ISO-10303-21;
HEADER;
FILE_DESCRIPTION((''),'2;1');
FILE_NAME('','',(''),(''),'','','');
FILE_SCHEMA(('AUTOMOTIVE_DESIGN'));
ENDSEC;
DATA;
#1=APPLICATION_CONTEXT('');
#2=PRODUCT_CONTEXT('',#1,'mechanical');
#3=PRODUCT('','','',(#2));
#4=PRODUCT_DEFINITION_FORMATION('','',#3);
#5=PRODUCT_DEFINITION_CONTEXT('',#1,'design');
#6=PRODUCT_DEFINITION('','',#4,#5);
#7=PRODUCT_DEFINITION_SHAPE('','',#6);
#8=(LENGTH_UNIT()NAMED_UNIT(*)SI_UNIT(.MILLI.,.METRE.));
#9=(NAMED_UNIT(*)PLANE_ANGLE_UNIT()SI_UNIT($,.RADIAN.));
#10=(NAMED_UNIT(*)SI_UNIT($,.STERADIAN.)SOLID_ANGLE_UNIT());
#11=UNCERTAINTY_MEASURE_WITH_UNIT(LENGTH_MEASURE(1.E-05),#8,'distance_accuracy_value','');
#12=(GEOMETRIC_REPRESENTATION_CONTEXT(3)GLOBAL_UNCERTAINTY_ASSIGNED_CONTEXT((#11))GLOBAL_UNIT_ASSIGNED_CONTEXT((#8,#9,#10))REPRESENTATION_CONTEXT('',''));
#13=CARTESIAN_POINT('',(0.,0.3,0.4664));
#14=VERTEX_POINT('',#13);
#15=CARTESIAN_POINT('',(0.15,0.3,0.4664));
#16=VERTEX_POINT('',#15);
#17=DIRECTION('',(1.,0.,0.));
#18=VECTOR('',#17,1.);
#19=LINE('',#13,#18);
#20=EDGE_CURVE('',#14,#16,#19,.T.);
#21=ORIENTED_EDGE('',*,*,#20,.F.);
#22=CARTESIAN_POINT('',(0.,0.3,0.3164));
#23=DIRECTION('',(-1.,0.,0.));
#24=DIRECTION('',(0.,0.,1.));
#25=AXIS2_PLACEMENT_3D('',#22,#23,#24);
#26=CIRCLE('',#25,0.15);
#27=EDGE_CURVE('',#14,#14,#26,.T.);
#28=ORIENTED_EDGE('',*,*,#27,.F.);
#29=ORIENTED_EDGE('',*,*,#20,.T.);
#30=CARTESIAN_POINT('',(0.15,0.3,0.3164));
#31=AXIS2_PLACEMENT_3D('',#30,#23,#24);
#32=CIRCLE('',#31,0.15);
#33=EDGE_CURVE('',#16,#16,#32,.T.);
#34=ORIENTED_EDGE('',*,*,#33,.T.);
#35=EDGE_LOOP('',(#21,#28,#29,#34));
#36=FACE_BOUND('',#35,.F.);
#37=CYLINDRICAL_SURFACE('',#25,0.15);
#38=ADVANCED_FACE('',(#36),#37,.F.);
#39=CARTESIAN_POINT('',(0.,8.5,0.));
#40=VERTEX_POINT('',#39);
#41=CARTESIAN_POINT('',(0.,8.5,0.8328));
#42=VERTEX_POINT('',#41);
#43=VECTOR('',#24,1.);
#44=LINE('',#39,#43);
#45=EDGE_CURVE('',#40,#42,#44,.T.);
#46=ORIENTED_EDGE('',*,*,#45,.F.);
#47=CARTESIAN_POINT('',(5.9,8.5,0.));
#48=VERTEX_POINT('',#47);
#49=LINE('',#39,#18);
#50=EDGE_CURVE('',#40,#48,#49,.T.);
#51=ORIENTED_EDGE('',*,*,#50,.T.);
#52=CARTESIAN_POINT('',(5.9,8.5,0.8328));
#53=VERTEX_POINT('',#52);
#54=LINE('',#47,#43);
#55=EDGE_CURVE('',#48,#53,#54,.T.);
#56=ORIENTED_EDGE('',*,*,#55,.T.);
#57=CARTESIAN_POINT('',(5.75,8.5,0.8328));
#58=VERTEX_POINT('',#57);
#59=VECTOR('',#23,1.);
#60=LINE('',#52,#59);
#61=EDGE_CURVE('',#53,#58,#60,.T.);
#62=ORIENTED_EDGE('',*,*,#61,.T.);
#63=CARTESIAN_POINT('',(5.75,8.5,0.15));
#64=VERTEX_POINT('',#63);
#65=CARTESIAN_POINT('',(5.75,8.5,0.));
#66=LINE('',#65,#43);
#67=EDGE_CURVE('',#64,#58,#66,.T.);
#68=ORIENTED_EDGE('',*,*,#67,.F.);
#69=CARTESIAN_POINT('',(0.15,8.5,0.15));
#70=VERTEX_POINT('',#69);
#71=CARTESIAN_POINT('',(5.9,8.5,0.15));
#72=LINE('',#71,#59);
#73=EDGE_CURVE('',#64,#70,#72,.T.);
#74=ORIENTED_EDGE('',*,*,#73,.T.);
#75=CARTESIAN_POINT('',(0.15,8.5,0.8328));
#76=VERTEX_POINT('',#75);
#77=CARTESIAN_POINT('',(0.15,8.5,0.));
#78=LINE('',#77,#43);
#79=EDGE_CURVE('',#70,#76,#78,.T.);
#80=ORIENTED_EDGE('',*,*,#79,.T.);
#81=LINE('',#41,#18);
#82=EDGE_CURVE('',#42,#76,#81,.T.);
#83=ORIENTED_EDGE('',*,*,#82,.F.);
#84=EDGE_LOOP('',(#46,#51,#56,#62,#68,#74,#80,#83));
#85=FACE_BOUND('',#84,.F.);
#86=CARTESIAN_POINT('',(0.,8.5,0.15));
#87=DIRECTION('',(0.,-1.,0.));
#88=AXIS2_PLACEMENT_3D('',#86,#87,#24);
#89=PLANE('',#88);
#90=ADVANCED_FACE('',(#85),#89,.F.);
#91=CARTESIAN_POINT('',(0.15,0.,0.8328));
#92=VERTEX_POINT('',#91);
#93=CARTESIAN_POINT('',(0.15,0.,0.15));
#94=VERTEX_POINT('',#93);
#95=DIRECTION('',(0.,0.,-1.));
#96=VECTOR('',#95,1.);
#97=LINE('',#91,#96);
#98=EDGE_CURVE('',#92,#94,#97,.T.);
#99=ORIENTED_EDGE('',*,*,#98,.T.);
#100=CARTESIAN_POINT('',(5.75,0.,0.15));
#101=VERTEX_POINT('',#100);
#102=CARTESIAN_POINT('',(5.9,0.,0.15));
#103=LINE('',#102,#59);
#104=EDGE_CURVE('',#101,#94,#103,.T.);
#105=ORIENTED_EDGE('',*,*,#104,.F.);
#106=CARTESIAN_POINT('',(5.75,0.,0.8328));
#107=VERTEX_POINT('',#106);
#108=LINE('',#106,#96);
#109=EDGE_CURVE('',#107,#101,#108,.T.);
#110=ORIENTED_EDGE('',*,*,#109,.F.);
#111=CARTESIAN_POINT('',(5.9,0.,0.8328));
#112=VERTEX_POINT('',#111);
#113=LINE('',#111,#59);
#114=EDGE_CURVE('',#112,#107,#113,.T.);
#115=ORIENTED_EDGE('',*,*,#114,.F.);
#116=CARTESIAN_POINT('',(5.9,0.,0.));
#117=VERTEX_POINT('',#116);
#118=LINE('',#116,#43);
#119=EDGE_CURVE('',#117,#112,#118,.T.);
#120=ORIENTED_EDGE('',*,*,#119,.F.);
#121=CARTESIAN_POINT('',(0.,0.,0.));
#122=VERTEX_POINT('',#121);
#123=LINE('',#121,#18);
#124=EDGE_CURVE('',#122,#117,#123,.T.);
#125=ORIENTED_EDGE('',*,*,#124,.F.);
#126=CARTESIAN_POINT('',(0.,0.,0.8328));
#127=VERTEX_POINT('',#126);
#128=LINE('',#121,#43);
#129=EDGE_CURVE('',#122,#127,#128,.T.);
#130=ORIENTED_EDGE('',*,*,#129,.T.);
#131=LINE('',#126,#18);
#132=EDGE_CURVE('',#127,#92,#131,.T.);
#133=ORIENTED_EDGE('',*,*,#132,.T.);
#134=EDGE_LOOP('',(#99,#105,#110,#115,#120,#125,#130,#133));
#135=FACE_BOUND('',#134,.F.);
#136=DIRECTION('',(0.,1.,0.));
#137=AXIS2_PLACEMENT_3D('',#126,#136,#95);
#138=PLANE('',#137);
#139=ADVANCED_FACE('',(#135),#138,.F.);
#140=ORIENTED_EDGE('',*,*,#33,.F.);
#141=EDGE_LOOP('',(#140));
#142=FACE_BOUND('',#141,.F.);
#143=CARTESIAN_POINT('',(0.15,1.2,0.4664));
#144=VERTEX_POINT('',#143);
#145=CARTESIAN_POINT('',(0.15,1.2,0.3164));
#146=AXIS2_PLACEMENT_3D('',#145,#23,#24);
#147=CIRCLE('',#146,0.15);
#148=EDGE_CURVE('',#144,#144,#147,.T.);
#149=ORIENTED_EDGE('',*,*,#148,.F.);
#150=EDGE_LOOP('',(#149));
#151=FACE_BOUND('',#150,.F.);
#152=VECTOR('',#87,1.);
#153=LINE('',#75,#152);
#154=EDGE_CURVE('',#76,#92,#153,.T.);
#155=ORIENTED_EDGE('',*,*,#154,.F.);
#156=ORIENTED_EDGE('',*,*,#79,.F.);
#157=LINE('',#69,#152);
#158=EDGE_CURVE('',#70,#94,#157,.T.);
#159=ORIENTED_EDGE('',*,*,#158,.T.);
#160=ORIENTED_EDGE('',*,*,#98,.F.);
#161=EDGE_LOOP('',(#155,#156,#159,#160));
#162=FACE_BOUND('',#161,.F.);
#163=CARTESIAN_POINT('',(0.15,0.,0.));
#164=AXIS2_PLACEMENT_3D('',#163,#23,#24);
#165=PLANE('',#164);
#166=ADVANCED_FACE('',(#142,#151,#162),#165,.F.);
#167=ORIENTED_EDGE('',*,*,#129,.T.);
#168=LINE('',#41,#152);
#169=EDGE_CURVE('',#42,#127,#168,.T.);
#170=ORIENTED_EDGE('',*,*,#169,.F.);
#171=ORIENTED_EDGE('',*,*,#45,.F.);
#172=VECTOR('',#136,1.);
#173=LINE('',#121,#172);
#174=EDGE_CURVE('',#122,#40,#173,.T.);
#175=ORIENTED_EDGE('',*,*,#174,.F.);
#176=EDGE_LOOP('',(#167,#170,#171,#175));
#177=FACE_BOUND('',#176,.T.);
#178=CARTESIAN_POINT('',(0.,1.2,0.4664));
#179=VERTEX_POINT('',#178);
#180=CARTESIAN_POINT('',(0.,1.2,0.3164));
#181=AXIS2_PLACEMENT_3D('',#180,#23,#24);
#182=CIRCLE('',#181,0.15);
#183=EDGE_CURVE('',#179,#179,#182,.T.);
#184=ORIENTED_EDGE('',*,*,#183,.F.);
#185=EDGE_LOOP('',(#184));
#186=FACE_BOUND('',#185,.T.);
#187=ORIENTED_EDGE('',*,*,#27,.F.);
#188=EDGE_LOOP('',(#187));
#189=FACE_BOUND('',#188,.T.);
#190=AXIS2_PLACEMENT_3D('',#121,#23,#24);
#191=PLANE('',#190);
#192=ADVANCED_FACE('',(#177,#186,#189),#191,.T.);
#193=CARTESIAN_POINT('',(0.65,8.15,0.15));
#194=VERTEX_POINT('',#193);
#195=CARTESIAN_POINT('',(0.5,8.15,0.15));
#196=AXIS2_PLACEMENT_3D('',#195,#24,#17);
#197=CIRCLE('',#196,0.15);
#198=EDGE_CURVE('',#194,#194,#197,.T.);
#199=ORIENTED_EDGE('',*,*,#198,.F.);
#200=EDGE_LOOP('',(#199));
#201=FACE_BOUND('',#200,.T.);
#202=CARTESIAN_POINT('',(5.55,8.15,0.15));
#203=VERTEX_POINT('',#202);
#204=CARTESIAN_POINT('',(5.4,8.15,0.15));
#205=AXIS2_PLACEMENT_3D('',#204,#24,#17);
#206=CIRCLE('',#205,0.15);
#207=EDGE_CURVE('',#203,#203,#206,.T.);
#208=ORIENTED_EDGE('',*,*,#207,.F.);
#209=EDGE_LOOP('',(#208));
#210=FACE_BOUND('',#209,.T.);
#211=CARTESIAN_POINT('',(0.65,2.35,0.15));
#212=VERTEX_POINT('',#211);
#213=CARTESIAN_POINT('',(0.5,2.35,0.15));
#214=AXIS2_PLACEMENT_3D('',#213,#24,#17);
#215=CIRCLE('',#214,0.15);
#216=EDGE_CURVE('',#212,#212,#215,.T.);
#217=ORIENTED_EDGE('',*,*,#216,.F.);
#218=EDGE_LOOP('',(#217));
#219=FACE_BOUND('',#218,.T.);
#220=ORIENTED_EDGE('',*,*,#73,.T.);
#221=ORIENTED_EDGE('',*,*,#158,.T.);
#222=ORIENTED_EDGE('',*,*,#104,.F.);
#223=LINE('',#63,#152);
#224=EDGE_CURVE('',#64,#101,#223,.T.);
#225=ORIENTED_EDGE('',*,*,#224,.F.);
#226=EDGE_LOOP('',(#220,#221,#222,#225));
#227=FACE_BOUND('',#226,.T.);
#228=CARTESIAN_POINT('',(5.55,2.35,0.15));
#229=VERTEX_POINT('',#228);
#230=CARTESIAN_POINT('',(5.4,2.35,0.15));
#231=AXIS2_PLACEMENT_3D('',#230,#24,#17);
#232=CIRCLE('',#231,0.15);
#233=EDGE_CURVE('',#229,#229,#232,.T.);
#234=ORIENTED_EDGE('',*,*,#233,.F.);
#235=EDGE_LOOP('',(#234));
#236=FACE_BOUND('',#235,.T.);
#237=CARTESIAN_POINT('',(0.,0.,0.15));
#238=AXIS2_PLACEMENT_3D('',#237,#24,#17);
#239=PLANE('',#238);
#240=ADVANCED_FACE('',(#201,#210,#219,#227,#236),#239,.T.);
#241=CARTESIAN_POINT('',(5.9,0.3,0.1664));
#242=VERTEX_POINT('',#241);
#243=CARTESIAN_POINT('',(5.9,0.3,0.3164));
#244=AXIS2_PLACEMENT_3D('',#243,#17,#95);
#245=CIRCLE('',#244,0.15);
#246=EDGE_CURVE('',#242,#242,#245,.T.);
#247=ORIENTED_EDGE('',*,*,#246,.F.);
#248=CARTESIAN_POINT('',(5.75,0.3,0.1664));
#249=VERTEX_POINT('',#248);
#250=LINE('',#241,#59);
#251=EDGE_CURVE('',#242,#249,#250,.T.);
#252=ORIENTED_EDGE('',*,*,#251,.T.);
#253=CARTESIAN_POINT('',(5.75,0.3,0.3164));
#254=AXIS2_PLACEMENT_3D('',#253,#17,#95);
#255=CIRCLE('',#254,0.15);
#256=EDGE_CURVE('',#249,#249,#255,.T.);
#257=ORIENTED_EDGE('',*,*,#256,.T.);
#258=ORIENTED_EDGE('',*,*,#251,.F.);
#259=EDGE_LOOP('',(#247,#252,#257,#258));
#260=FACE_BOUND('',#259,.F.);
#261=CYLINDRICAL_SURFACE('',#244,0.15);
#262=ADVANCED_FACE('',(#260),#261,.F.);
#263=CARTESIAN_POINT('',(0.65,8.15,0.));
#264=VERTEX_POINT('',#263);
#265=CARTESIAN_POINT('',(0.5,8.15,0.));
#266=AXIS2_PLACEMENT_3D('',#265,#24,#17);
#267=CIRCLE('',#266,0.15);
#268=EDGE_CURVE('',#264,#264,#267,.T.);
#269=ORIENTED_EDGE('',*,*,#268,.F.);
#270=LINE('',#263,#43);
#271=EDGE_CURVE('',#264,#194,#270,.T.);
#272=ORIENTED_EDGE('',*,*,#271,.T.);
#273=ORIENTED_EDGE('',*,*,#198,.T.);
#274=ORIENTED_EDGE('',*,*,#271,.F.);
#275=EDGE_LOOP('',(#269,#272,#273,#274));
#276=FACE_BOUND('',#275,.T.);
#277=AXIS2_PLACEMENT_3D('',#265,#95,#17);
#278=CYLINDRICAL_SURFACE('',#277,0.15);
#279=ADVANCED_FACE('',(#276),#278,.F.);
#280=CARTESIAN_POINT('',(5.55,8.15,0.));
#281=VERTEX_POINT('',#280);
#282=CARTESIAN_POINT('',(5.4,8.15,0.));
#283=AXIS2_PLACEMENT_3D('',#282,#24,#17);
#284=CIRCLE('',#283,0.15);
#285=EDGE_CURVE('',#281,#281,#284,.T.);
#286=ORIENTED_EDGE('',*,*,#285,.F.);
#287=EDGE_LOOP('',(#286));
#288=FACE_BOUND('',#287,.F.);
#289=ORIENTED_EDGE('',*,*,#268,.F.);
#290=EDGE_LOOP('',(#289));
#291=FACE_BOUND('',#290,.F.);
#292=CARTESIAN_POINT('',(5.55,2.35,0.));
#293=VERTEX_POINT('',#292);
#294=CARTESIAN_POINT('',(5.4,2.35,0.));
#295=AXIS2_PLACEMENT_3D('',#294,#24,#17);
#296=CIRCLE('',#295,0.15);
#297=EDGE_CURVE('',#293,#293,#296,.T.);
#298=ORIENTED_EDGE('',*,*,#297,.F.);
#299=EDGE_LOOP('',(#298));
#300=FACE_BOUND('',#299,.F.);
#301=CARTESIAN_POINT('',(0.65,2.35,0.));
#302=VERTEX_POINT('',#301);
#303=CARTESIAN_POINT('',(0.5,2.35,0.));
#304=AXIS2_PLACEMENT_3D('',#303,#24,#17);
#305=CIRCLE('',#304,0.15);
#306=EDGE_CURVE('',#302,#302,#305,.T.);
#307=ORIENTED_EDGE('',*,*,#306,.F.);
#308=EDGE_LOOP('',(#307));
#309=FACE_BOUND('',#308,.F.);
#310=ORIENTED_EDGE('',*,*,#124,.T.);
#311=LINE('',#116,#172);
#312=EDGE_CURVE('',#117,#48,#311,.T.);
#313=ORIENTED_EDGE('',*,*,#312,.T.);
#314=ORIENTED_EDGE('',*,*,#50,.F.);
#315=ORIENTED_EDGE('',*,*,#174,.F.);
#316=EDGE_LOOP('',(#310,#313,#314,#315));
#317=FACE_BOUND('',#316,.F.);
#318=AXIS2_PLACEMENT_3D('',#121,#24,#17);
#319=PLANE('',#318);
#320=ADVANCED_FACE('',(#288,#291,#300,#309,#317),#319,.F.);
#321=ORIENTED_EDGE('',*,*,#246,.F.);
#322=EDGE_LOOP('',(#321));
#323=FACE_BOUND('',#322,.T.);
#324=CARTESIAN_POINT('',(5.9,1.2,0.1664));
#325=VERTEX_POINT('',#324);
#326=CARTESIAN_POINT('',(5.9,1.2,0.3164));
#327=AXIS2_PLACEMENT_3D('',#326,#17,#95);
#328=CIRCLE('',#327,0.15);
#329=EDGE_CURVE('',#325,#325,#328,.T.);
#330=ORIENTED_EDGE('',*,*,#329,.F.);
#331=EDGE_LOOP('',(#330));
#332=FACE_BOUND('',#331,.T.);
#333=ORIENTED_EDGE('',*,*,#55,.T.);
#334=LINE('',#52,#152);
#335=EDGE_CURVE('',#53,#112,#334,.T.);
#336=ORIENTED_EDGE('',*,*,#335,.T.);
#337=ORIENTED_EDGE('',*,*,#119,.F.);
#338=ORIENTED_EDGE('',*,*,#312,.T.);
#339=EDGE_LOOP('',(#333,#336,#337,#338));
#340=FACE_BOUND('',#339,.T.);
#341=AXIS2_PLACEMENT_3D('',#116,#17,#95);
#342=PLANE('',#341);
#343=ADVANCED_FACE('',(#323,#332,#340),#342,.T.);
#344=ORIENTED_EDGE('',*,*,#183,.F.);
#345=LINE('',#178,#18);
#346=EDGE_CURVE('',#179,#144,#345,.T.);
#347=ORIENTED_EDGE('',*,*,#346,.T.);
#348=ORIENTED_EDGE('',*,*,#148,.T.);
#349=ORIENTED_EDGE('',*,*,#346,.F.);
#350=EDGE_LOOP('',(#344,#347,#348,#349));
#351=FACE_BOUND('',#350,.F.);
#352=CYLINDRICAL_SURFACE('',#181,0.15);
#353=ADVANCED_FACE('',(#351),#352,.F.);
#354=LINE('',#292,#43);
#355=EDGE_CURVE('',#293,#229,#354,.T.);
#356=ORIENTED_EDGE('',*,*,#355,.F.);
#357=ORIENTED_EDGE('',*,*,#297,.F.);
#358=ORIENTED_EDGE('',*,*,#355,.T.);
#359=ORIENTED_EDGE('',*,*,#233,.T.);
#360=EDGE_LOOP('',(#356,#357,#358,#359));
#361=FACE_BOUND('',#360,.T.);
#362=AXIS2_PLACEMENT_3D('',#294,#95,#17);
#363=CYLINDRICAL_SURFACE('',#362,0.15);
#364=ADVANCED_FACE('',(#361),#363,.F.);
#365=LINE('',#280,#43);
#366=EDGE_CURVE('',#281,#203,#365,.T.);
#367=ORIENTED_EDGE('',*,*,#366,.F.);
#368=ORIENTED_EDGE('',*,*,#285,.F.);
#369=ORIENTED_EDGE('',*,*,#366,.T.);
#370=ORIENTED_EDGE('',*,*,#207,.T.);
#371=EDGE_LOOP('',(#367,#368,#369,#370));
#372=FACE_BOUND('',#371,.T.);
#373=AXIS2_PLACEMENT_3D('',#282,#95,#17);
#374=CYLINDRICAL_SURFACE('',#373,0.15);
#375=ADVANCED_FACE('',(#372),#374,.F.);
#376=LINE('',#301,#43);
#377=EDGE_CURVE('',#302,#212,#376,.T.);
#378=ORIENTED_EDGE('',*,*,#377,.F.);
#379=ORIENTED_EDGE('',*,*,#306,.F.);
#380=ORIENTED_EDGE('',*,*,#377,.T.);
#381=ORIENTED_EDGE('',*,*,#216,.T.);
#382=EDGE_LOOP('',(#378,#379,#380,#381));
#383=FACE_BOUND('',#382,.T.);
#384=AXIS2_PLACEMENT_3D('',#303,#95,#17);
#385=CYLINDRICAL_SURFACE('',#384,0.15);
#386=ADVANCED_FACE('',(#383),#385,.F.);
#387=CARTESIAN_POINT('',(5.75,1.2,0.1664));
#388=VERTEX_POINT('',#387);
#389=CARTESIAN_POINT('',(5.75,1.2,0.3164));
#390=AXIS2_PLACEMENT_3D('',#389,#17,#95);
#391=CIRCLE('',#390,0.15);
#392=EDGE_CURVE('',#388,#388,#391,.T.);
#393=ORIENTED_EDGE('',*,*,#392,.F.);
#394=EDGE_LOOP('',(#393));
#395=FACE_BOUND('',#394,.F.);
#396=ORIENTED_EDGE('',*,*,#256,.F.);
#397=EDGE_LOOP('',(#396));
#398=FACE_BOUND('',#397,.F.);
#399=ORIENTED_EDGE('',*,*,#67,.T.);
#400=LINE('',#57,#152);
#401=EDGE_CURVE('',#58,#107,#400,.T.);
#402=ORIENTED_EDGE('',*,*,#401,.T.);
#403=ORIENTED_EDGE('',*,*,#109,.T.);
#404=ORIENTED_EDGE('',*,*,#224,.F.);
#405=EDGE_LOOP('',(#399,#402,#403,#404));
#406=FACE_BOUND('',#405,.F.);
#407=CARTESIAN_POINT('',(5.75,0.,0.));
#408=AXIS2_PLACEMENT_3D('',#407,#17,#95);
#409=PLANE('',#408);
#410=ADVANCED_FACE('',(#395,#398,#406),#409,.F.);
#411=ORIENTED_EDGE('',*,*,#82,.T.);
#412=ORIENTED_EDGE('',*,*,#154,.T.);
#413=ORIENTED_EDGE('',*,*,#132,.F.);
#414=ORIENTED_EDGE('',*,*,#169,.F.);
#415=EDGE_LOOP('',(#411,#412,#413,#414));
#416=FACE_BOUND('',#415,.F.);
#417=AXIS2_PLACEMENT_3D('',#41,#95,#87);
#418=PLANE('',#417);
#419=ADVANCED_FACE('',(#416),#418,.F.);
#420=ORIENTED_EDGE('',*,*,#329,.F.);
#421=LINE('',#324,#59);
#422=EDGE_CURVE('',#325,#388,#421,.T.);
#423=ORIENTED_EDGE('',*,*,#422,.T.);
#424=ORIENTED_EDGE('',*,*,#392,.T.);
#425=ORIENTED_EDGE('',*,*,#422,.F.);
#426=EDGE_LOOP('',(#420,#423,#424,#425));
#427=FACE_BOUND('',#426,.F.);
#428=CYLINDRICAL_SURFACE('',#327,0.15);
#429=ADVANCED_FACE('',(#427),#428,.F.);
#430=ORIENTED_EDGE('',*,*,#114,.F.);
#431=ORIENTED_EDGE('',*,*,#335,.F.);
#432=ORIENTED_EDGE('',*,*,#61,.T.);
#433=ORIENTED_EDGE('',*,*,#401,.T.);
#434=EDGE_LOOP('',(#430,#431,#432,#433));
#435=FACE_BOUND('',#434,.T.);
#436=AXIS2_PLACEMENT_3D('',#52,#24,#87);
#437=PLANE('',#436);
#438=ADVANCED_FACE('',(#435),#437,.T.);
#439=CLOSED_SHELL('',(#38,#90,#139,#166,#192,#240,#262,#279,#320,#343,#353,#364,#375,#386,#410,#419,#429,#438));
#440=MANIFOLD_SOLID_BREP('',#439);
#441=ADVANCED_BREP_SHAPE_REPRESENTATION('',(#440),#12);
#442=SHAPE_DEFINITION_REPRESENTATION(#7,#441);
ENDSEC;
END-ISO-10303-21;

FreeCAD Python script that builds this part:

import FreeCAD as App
import Part
import Sketcher

V = App.Vector
Q = App.Units.Quantity

doc = App.newDocument("Part")
body = doc.addObject("PartDesign::Body", "Body")

# Sketch on XY plane
sketch1 = doc.addObject("Sketcher::SketchObject", "Sketch")
body.addObject(sketch1)
sketch1.AttachmentSupport = (doc.XY_Plane, [""])
sketch1.MapMode = "FlatFace"
sketch1.addGeometry([
    Part.LineSegment(V(0, 0, 0), V(5.9, 0, 0)),  # 0
    Part.LineSegment(V(5.9, 0, 0), V(5.9, 8.5, 0)),  # 1
    Part.LineSegment(V(5.9, 8.5, 0), V(0, 8.5, 0)),  # 2
    Part.LineSegment(V(0, 8.5, 0), V(0, 0, 0)),  # 3
    Part.Circle(V(5.4, 8.15, 0), V(0, 0, 1), 0.15),  # 4
    Part.Circle(V(0.5, 2.35, 0), V(0, 0, 1), 0.15),  # 5
    Part.Circle(V(5.4, 2.35, 0), V(0, 0, 1), 0.15),  # 6
    Part.Circle(V(0.5, 8.15, 0), V(0, 0, 1), 0.15),  # 7
], False)
sketch1.addConstraint([
    Sketcher.Constraint("Coincident", 0, 2, 1, 1),
    Sketcher.Constraint("Coincident", 1, 2, 2, 1),
    Sketcher.Constraint("Coincident", 2, 2, 3, 1),
    Sketcher.Constraint("Coincident", 3, 2, 0, 1),
    Sketcher.Constraint("Horizontal", 0),
    Sketcher.Constraint("Vertical", 1),
    Sketcher.Constraint("Horizontal", 2),
    Sketcher.Constraint("Vertical", 3),
    Sketcher.Constraint("Coincident", 3, 2, -1, 1),
    Sketcher.Constraint("Equal", 4, 5),
    Sketcher.Constraint("Equal", 5, 6),
    Sketcher.Constraint("Equal", 6, 7),
    Sketcher.Constraint("Horizontal", 5, 3, 6, 3),
    Sketcher.Constraint("Horizontal", 4, 3, 7, 3),
    Sketcher.Constraint("Vertical", 4, 3, 6, 3),
    Sketcher.Constraint("Vertical", 5, 3, 7, 3),
    Sketcher.Constraint("Diameter", 4, Q("0.3 mm")),
    Sketcher.Constraint("DistanceX", 0, 1, 0, 2, Q("5.9 mm")),
    Sketcher.Constraint("DistanceY", 1, 1, 1, 2, Q("8.5 mm")),
    Sketcher.Constraint("DistanceX", -1, 1, 4, 3, Q("5.4 mm")),
    Sketcher.Constraint("DistanceX", -1, 1, 5, 3, Q("0.5 mm")),
    Sketcher.Constraint("DistanceY", 5, 3, 4, 3, Q("5.8 mm")),
    Sketcher.Constraint("DistanceY", -1, 1, 4, 3, Q("8.15 mm")),
])
pad1 = doc.addObject("PartDesign::Pad", "Pad")
body.addObject(pad1)
pad1.Profile = sketch1
pad1.Length = 0.15

# Sketch on YZ plane
sketch2 = doc.addObject("Sketcher::SketchObject", "Sketch001")
body.addObject(sketch2)
sketch2.AttachmentSupport = (doc.YZ_Plane, [""])
sketch2.MapMode = "FlatFace"
sketch2.AttachmentOffset = App.Placement(V(0, 0, 5.9), App.Rotation())
sketch2.addGeometry([
    Part.LineSegment(V(0, 0.83, 0), V(0, 0.15, 0)),  # 0
    Part.LineSegment(V(0, 0.15, 0), V(8.5, 0.15, 0)),  # 1
    Part.LineSegment(V(8.5, 0.15, 0), V(8.5, 0.83, 0)),  # 2
    Part.LineSegment(V(8.5, 0.83, 0), V(0, 0.83, 0)),  # 3
    Part.Circle(V(0.3, 0.32, 0), V(0, 0, 1), 0.15),  # 4
    Part.Circle(V(1.2, 0.32, 0), V(0, 0, 1), 0.15),  # 5
], False)
sketch2.addConstraint([
    Sketcher.Constraint("Coincident", 0, 2, 1, 1),
    Sketcher.Constraint("Coincident", 1, 2, 2, 1),
    Sketcher.Constraint("Coincident", 2, 2, 3, 1),
    Sketcher.Constraint("Coincident", 3, 2, 0, 1),
    Sketcher.Constraint("Vertical", 0),
    Sketcher.Constraint("Horizontal", 1),
    Sketcher.Constraint("Vertical", 2),
    Sketcher.Constraint("Horizontal", 3),
    Sketcher.Constraint("Equal", 4, 5),
    Sketcher.Constraint("PointOnObject", 0, 2, -2),
    Sketcher.Constraint("Horizontal", 4, 3, 5, 3),
    Sketcher.Constraint("Diameter", 4, Q("0.3 mm")),
    Sketcher.Constraint("DistanceX", 1, 1, 1, 2, Q("8.5 mm")),
    Sketcher.Constraint("DistanceX", -1, 1, 4, 3, Q("0.3 mm")),
    Sketcher.Constraint("DistanceX", -1, 1, 5, 3, Q("1.2 mm")),
    Sketcher.Constraint("DistanceY", -1, 1, 0, 2, Q("0.15 mm")),
    Sketcher.Constraint("DistanceY", 0, 2, 0, 1, Q("0.6828 mm")),
    Sketcher.Constraint("DistanceY", -1, 1, 4, 3, Q("0.3164 mm")),
])
pad2 = doc.addObject("PartDesign::Pad", "Pad001")
body.addObject(pad2)
pad2.Profile = sketch2
pad2.Length = 0.15
pad2.Reversed = True

# Sketch on YZ plane
sketch3 = doc.addObject("Sketcher::SketchObject", "Sketch002")
body.addObject(sketch3)
sketch3.AttachmentSupport = (doc.YZ_Plane, [""])
sketch3.MapMode = "FlatFace"
sketch3.addGeometry([
    Part.LineSegment(V(8.5, 0.15, 0), V(0, 0.15, 0)),  # 0
    Part.LineSegment(V(0, 0.15, 0), V(0, 0.83, 0)),  # 1
    Part.LineSegment(V(0, 0.83, 0), V(8.5, 0.83, 0)),  # 2
    Part.LineSegment(V(8.5, 0.83, 0), V(8.5, 0.15, 0)),  # 3
    Part.Circle(V(0.3, 0.32, 0), V(0, 0, 1), 0.15),  # 4
    Part.Circle(V(1.2, 0.32, 0), V(0, 0, 1), 0.15),  # 5
], False)
sketch3.addConstraint([
    Sketcher.Constraint("Coincident", 0, 2, 1, 1),
    Sketcher.Constraint("Coincident", 1, 2, 2, 1),
    Sketcher.Constraint("Coincident", 2, 2, 3, 1),
    Sketcher.Constraint("Coincident", 3, 2, 0, 1),
    Sketcher.Constraint("Horizontal", 0),
    Sketcher.Constraint("Vertical", 1),
    Sketcher.Constraint("Horizontal", 2),
    Sketcher.Constraint("Vertical", 3),
    Sketcher.Constraint("Equal", 4, 5),
    Sketcher.Constraint("PointOnObject", 0, 2, -2),
    Sketcher.Constraint("Horizontal", 4, 3, 5, 3),
    Sketcher.Constraint("Diameter", 4, Q("0.3 mm")),
    Sketcher.Constraint("DistanceX", 0, 2, 0, 1, Q("8.5 mm")),
    Sketcher.Constraint("DistanceX", -1, 1, 4, 3, Q("0.3 mm")),
    Sketcher.Constraint("DistanceX", -1, 1, 5, 3, Q("1.2 mm")),
    Sketcher.Constraint("DistanceY", -1, 1, 0, 2, Q("0.15 mm")),
    Sketcher.Constraint("DistanceY", 1, 1, 1, 2, Q("0.6828 mm")),
    Sketcher.Constraint("DistanceY", -1, 1, 4, 3, Q("0.3164 mm")),
])
pad3 = doc.addObject("PartDesign::Pad", "Pad002")
body.addObject(pad3)
pad3.Profile = sketch3
pad3.Length = 0.15

doc.recompute()
